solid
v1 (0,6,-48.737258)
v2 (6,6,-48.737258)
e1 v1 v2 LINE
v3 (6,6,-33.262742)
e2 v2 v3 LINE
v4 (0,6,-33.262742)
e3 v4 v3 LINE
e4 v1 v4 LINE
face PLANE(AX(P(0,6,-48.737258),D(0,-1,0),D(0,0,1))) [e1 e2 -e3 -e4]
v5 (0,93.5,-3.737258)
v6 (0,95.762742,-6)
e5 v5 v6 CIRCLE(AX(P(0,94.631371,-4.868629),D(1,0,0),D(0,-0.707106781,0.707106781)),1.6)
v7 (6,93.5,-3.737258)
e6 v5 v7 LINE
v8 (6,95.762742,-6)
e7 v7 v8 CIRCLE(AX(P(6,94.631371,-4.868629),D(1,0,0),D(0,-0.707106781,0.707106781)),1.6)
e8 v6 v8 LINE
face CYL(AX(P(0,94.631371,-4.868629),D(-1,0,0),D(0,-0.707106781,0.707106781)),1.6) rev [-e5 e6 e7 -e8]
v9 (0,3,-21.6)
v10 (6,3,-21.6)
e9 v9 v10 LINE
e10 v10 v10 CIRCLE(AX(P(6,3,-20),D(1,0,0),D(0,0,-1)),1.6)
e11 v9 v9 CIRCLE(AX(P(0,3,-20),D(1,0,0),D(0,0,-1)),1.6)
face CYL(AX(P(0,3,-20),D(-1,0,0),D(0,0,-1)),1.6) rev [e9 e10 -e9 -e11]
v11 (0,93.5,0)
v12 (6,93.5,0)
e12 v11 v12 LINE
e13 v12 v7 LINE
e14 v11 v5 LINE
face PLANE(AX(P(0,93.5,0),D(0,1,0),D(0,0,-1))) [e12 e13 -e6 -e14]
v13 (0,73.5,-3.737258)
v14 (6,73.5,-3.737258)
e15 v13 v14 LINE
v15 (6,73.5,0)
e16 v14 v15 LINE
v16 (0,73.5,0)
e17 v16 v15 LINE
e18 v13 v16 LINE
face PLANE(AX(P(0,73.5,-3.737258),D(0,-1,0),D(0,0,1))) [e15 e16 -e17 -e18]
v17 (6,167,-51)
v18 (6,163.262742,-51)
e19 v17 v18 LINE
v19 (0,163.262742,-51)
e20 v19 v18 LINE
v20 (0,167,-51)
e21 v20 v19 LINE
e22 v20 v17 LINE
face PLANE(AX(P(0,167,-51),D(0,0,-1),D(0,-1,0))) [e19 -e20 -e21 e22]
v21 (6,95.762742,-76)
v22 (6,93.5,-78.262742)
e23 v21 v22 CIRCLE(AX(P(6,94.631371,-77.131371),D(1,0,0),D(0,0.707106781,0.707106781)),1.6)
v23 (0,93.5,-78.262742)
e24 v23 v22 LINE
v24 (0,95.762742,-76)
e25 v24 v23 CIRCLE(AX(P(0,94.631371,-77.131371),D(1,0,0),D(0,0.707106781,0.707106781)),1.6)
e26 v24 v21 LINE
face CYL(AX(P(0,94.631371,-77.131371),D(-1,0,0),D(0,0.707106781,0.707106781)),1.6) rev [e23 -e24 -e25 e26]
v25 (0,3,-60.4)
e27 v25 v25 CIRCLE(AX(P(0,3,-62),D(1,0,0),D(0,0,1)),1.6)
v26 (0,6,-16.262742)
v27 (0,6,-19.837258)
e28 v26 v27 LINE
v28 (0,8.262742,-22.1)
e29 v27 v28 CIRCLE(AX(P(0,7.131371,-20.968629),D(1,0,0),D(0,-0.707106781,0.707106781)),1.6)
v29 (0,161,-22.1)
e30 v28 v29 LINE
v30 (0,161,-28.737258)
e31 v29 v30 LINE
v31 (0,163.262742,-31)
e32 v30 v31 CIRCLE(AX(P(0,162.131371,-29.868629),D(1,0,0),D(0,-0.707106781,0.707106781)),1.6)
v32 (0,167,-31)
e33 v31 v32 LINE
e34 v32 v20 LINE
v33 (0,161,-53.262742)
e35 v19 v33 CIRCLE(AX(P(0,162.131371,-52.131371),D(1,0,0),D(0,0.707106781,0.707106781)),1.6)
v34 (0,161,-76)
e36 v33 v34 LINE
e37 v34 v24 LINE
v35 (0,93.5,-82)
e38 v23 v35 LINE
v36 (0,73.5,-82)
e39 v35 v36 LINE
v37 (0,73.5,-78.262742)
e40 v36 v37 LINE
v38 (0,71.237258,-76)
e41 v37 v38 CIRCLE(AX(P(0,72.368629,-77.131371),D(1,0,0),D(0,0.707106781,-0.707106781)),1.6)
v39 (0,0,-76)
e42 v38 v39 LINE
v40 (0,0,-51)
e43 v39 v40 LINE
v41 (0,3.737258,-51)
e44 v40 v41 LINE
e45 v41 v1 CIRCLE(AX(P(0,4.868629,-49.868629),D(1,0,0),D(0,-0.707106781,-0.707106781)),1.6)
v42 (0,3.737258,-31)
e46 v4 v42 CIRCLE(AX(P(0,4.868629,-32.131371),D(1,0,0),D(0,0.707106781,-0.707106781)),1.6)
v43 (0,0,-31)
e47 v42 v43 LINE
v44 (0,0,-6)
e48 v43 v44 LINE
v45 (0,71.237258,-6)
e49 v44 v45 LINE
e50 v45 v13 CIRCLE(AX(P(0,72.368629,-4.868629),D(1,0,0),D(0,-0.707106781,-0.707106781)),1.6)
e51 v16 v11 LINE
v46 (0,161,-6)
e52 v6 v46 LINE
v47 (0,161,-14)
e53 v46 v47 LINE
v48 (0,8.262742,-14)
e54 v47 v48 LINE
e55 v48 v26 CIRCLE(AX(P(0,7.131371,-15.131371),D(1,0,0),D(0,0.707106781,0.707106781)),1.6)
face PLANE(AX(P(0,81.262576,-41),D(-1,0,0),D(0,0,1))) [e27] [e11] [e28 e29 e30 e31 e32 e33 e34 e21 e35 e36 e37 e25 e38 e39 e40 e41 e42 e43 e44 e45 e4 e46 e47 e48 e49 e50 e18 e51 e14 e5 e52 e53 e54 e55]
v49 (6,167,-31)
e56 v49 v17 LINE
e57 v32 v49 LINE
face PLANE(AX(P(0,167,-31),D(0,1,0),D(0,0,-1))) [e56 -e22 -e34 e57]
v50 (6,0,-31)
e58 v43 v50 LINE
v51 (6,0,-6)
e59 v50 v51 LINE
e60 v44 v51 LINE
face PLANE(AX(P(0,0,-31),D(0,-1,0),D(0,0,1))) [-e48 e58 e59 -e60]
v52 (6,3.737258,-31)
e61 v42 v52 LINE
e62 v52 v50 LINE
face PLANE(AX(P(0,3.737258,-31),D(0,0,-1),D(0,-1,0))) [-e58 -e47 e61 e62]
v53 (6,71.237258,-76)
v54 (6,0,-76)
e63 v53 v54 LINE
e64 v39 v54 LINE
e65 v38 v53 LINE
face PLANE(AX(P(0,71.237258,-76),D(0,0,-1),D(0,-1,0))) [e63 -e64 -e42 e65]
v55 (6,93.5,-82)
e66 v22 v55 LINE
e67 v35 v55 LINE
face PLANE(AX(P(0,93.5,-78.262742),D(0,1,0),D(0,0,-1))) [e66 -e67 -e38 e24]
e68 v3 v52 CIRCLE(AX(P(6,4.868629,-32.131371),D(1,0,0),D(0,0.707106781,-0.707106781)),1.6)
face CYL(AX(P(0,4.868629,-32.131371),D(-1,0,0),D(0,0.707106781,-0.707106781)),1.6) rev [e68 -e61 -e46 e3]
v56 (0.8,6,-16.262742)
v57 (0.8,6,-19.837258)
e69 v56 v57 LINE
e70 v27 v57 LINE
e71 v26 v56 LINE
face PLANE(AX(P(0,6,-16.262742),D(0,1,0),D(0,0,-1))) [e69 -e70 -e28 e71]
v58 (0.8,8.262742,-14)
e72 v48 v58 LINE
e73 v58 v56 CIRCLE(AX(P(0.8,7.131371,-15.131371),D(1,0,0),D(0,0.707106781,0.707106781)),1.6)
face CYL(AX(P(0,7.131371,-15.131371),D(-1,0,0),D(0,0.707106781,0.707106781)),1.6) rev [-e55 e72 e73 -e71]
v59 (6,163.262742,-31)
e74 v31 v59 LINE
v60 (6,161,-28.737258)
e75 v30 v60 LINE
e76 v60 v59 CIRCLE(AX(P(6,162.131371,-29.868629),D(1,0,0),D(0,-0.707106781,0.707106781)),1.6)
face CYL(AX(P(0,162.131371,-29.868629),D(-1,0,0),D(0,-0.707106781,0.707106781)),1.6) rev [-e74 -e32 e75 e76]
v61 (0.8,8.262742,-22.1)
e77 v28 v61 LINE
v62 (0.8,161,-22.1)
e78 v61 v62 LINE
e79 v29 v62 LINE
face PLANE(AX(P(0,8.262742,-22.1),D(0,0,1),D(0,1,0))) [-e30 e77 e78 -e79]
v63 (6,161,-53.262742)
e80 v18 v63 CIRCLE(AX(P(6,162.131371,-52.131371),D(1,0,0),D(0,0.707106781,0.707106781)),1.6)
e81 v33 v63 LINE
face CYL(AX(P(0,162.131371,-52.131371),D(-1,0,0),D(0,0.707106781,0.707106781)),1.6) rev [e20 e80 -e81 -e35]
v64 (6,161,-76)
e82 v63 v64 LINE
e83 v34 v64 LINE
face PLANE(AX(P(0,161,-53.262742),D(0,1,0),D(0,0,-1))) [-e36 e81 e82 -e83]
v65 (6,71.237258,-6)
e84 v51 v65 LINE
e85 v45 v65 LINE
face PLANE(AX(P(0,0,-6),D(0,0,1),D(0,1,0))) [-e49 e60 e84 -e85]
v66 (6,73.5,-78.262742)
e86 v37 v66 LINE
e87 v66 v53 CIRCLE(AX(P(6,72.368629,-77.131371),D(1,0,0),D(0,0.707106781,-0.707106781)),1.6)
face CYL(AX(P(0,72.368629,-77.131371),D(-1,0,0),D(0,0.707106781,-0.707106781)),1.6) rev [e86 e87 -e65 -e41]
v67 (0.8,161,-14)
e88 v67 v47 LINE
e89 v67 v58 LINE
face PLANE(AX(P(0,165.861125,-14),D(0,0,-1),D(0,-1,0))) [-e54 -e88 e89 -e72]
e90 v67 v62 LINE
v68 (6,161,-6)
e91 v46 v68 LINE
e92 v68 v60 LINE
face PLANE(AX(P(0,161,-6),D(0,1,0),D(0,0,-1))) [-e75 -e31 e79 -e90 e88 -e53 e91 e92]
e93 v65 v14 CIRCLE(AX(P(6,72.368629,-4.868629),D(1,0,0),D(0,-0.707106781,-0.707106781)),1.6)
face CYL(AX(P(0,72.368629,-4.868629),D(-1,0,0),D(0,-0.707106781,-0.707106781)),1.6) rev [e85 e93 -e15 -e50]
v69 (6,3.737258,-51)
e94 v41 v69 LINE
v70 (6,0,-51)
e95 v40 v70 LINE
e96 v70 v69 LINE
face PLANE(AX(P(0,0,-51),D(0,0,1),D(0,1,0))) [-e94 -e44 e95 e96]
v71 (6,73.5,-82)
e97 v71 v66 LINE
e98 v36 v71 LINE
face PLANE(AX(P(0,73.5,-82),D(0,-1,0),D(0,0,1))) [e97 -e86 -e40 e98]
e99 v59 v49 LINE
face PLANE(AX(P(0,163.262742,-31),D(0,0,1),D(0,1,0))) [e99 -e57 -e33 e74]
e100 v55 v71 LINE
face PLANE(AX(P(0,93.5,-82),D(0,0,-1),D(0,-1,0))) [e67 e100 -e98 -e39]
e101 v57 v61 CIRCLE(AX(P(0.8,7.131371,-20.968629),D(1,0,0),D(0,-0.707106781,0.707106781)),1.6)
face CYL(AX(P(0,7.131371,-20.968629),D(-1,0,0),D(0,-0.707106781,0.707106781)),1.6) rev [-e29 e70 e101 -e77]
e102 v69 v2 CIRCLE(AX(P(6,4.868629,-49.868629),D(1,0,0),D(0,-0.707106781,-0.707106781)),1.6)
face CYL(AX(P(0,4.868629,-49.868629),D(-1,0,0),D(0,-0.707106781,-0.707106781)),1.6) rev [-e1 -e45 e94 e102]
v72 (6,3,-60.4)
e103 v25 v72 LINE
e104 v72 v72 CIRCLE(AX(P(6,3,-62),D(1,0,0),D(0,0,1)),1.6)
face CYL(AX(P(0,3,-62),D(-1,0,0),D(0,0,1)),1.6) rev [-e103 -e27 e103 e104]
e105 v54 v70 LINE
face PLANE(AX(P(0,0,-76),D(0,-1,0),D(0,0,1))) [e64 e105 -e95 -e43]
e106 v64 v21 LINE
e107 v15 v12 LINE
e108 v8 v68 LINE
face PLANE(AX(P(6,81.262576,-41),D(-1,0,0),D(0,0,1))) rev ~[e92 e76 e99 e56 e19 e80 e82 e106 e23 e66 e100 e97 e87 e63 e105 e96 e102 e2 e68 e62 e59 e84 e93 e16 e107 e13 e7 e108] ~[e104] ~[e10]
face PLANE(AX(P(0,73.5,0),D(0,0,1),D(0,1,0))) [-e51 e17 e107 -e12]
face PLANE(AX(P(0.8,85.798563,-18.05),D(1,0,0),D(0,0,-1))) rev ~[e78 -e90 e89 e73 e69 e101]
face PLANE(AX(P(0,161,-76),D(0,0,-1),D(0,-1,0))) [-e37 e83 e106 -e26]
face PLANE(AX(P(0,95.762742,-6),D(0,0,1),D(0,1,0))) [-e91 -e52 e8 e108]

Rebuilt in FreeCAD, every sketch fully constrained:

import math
import FreeCAD as App
import Part
import Sketcher

doc = App.newDocument("Part")
body = doc.addObject("PartDesign::Body", "Body")

sketch1 = body.newObject("Sketcher::SketchObject", "Sketch")
sketch1.AttachmentSupport = (doc.getObject("YZ_Plane"), [""])
sketch1.MapMode = "FlatFace"
sketch1.addGeometry(Part.LineSegment(App.Vector(73.5, 0, 0), App.Vector(73.5, -3.7, 0)), False)
sketch1.addGeometry(Part.ArcOfCircle(Part.Circle(App.Vector(72.4, -4.9, 0), App.Vector(0, 0, 1), 1.6), math.radians(-135), math.radians(45)), False)
sketch1.addGeometry(Part.LineSegment(App.Vector(71.2, -6, 0), App.Vector(0, -6, 0)), False)
sketch1.addGeometry(Part.LineSegment(App.Vector(0, -6, 0), App.Vector(0, -31, 0)), False)
sketch1.addGeometry(Part.LineSegment(App.Vector(0, -31, 0), App.Vector(3.7, -31, 0)), False)
sketch1.addGeometry(Part.ArcOfCircle(Part.Circle(App.Vector(4.9, -32.1, 0), App.Vector(0, 0, 1), 1.6), math.radians(-45), math.radians(135)), False)
sketch1.addGeometry(Part.LineSegment(App.Vector(6, -33.3, 0), App.Vector(6, -48.7, 0)), False)
sketch1.addGeometry(Part.ArcOfCircle(Part.Circle(App.Vector(4.9, -49.9, 0), App.Vector(0, 0, 1), 1.6), math.radians(-135), math.radians(45)), False)
sketch1.addGeometry(Part.LineSegment(App.Vector(3.7, -51, 0), App.Vector(0, -51, 0)), False)
sketch1.addGeometry(Part.LineSegment(App.Vector(0, -51, 0), App.Vector(0, -76, 0)), False)
sketch1.addGeometry(Part.LineSegment(App.Vector(0, -76, 0), App.Vector(71.2, -76, 0)), False)
sketch1.addGeometry(Part.ArcOfCircle(Part.Circle(App.Vector(72.4, -77.1, 0), App.Vector(0, 0, 1), 1.6), math.radians(-45), math.radians(135)), False)
sketch1.addGeometry(Part.LineSegment(App.Vector(73.5, -78.3, 0), App.Vector(73.5, -82, 0)), False)
sketch1.addGeometry(Part.LineSegment(App.Vector(73.5, -82, 0), App.Vector(93.5, -82, 0)), False)
sketch1.addGeometry(Part.LineSegment(App.Vector(93.5, -82, 0), App.Vector(93.5, -78.3, 0)), False)
sketch1.addGeometry(Part.ArcOfCircle(Part.Circle(App.Vector(94.6, -77.1, 0), App.Vector(0, 0, 1), 1.6), math.radians(45), math.radians(225)), False)
sketch1.addGeometry(Part.LineSegment(App.Vector(95.8, -76, 0), App.Vector(161, -76, 0)), False)
sketch1.addGeometry(Part.LineSegment(App.Vector(161, -76, 0), App.Vector(161, -53.3, 0)), False)
sketch1.addGeometry(Part.ArcOfCircle(Part.Circle(App.Vector(162.1, -52.1, 0), App.Vector(0, 0, 1), 1.6), math.radians(45), math.radians(225)), False)
sketch1.addGeometry(Part.LineSegment(App.Vector(163.3, -51, 0), App.Vector(167, -51, 0)), False)
sketch1.addGeometry(Part.LineSegment(App.Vector(167, -51, 0), App.Vector(167, -31, 0)), False)
sketch1.addGeometry(Part.LineSegment(App.Vector(167, -31, 0), App.Vector(163.3, -31, 0)), False)
sketch1.addGeometry(Part.ArcOfCircle(Part.Circle(App.Vector(162.1, -29.9, 0), App.Vector(0, 0, 1), 1.6), math.radians(135), math.radians(315)), False)
sketch1.addGeometry(Part.LineSegment(App.Vector(161, -28.7, 0), App.Vector(161, -6, 0)), False)
sketch1.addGeometry(Part.LineSegment(App.Vector(161, -6, 0), App.Vector(95.8, -6, 0)), False)
sketch1.addGeometry(Part.ArcOfCircle(Part.Circle(App.Vector(94.6, -4.9, 0), App.Vector(0, 0, 1), 1.6), math.radians(135), math.radians(315)), False)
sketch1.addGeometry(Part.LineSegment(App.Vector(93.5, -3.7, 0), App.Vector(93.5, 0, 0)), False)
sketch1.addGeometry(Part.LineSegment(App.Vector(93.5, 0, 0), App.Vector(73.5, 0, 0)), False)
sketch1.addGeometry(Part.Circle(App.Vector(3, -62, 0), App.Vector(0, 0, 1), 1.6), False)
sketch1.addGeometry(Part.Circle(App.Vector(3, -20, 0), App.Vector(0, 0, 1), 1.6), False)
sketch1.addConstraint(Sketcher.Constraint("Coincident", 0, 2, 1, 2))
sketch1.addConstraint(Sketcher.Constraint("Coincident", 1, 1, 2, 1))
sketch1.addConstraint(Sketcher.Constraint("Coincident", 2, 2, 3, 1))
sketch1.addConstraint(Sketcher.Constraint("Coincident", 3, 2, 4, 1))
sketch1.addConstraint(Sketcher.Constraint("Coincident", 4, 2, 5, 2))
sketch1.addConstraint(Sketcher.Constraint("Coincident", 5, 1, 6, 1))
sketch1.addConstraint(Sketcher.Constraint("Coincident", 6, 2, 7, 2))
sketch1.addConstraint(Sketcher.Constraint("Coincident", 7, 1, 8, 1))
sketch1.addConstraint(Sketcher.Constraint("Coincident", 8, 2, 9, 1))
sketch1.addConstraint(Sketcher.Constraint("Coincident", 9, 2, 10, 1))
sketch1.addConstraint(Sketcher.Constraint("Coincident", 10, 2, 11, 2))
sketch1.addConstraint(Sketcher.Constraint("Coincident", 11, 1, 12, 1))
sketch1.addConstraint(Sketcher.Constraint("Coincident", 12, 2, 13, 1))
sketch1.addConstraint(Sketcher.Constraint("Coincident", 13, 2, 14, 1))
sketch1.addConstraint(Sketcher.Constraint("Coincident", 14, 2, 15, 2))
sketch1.addConstraint(Sketcher.Constraint("Coincident", 15, 1, 16, 1))
sketch1.addConstraint(Sketcher.Constraint("Coincident", 16, 2, 17, 1))
sketch1.addConstraint(Sketcher.Constraint("Coincident", 17, 2, 18, 2))
sketch1.addConstraint(Sketcher.Constraint("Coincident", 18, 1, 19, 1))
sketch1.addConstraint(Sketcher.Constraint("Coincident", 19, 2, 20, 1))
sketch1.addConstraint(Sketcher.Constraint("Coincident", 20, 2, 21, 1))
sketch1.addConstraint(Sketcher.Constraint("Coincident", 21, 2, 22, 2))
sketch1.addConstraint(Sketcher.Constraint("Coincident", 22, 1, 23, 1))
sketch1.addConstraint(Sketcher.Constraint("Coincident", 23, 2, 24, 1))
sketch1.addConstraint(Sketcher.Constraint("Coincident", 24, 2, 25, 2))
sketch1.addConstraint(Sketcher.Constraint("Coincident", 25, 1, 26, 1))
sketch1.addConstraint(Sketcher.Constraint("Coincident", 26, 2, 27, 1))
sketch1.addConstraint(Sketcher.Constraint("Coincident", 27, 2, 0, 1))
sketch1.addConstraint(Sketcher.Constraint("Vertical", 0))
sketch1.addConstraint(Sketcher.Constraint("Horizontal", 2))
sketch1.addConstraint(Sketcher.Constraint("Vertical", 3))
sketch1.addConstraint(Sketcher.Constraint("Horizontal", 4))
sketch1.addConstraint(Sketcher.Constraint("Vertical", 6))
sketch1.addConstraint(Sketcher.Constraint("Horizontal", 8))
sketch1.addConstraint(Sketcher.Constraint("Vertical", 9))
sketch1.addConstraint(Sketcher.Constraint("Horizontal", 10))
sketch1.addConstraint(Sketcher.Constraint("Vertical", 12))
sketch1.addConstraint(Sketcher.Constraint("Horizontal", 13))
sketch1.addConstraint(Sketcher.Constraint("Vertical", 14))
sketch1.addConstraint(Sketcher.Constraint("Horizontal", 16))
sketch1.addConstraint(Sketcher.Constraint("Vertical", 17))
sketch1.addConstraint(Sketcher.Constraint("Horizontal", 19))
sketch1.addConstraint(Sketcher.Constraint("Vertical", 20))
sketch1.addConstraint(Sketcher.Constraint("Horizontal", 21))
sketch1.addConstraint(Sketcher.Constraint("Vertical", 23))
sketch1.addConstraint(Sketcher.Constraint("Horizontal", 24))
sketch1.addConstraint(Sketcher.Constraint("Vertical", 26))
sketch1.addConstraint(Sketcher.Constraint("Horizontal", 27))
sketch1.addConstraint(Sketcher.Constraint("Equal", 1, 5))
sketch1.addConstraint(Sketcher.Constraint("Equal", 5, 7))
sketch1.addConstraint(Sketcher.Constraint("Equal", 7, 11))
sketch1.addConstraint(Sketcher.Constraint("Equal", 11, 15))
sketch1.addConstraint(Sketcher.Constraint("Equal", 15, 18))
sketch1.addConstraint(Sketcher.Constraint("Equal", 18, 22))
sketch1.addConstraint(Sketcher.Constraint("Equal", 22, 25))
sketch1.addConstraint(Sketcher.Constraint("Equal", 25, 28))
sketch1.addConstraint(Sketcher.Constraint("Equal", 28, 29))
sketch1.addConstraint(Sketcher.Constraint("PointOnObject", 2, 2, -2))
sketch1.addConstraint(Sketcher.Constraint("PointOnObject", 8, 2, -2))
sketch1.addConstraint(Sketcher.Constraint("PointOnObject", 26, 2, -1))
sketch1.addConstraint(Sketcher.Constraint("Horizontal", 11, 3, 15, 3))
sketch1.addConstraint(Sketcher.Constraint("Horizontal", 1, 3, 25, 3))
sketch1.addConstraint(Sketcher.Constraint("Horizontal", 11, 1, 14, 2))
sketch1.addConstraint(Sketcher.Constraint("Horizontal", 10, 2, 15, 1))
sketch1.addConstraint(Sketcher.Constraint("Horizontal", 8, 2, 18, 1))
sketch1.addConstraint(Sketcher.Constraint("Horizontal", 4, 2, 20, 2))
sketch1.addConstraint(Sketcher.Constraint("Horizontal", 2, 2, 23, 2))
sketch1.addConstraint(Sketcher.Constraint("Horizontal", 0, 2, 25, 1))
sketch1.addConstraint(Sketcher.Constraint("Vertical", 5, 3, 7, 3))
sketch1.addConstraint(Sketcher.Constraint("Vertical", 1, 3, 11, 3))
sketch1.addConstraint(Sketcher.Constraint("Vertical", 18, 3, 22, 3))
sketch1.addConstraint(Sketcher.Constraint("Vertical", 15, 3, 25, 3))
sketch1.addConstraint(Sketcher.Constraint("Vertical", 28, 3, 29, 3))
sketch1.addConstraint(Sketcher.Constraint("Vertical", 4, 2, 7, 1))
sketch1.addConstraint(Sketcher.Constraint("Vertical", 1, 1, 10, 2))
sketch1.addConstraint(Sketcher.Constraint("Vertical", 0, 2, 11, 1))
sketch1.addConstraint(Sketcher.Constraint("Vertical", 18, 1, 21, 2))
sketch1.addConstraint(Sketcher.Constraint("Vertical", 17, 2, 22, 1))
sketch1.addConstraint(Sketcher.Constraint("Equal", 8, 19))
sketch1.addConstraint(Sketcher.Constraint("Equal", 21, 0))
sketch1.addConstraint(Sketcher.Constraint("Equal", 3, 9))
sketch1.addConstraint(Sketcher.Constraint("Equal", 0, 12))
sketch1.addConstraint(Sketcher.Constraint("Equal", 27, 20))
sketch1.addConstraint(Sketcher.Constraint("Diameter", 28, 3.2))
sketch1.addConstraint(Sketcher.Constraint("DistanceX", 13, 1, 13, 2, 20.0))
sketch1.addConstraint(Sketcher.Constraint("DistanceY", 3, 2, 3, 1, 25.0))
sketch1.addConstraint(Sketcher.Constraint("DistanceX", -1, 1, 28, 3, 3.0))
sketch1.addConstraint(Sketcher.Constraint("DistanceY", 28, 3, -1, 1, 62.0))
sketch1.addConstraint(Sketcher.Constraint("DistanceY", 29, 3, -1, 1, 20.0))
sketch1.addConstraint(Sketcher.Constraint("DistanceY", 1, 1, -1, 1, 6.0))
sketch1.addConstraint(Sketcher.Constraint("DistanceX", -1, 1, 5, 1, 6.0))
sketch1.addConstraint(Sketcher.Constraint("DistanceX", -1, 1, 16, 2, 161.0))
sketch1.addConstraint(Sketcher.Constraint("DistanceX", -1, 1, 19, 2, 167.0))
sketch1.addConstraint(Sketcher.Constraint("DistanceY", 7, 3, 1, 3, 45.0))
sketch1.addConstraint(Sketcher.Constraint("DistanceY", 15, 3, 18, 3, 25.0))
sketch1.addConstraint(Sketcher.Constraint("DistanceX", -1, 1, 0, 2, 73.5))
sketch1.addConstraint(Sketcher.Constraint("DistanceX", 5, 3, 1, 3, 67.5))
sketch1.addConstraint(Sketcher.Constraint("DistanceX", -1, 1, 1, 3, 72.368629))
pad1 = body.newObject("PartDesign::Pad", "Pad")
pad1.Profile = sketch1
pad1.Length = 6

sketch2 = body.newObject("Sketcher::SketchObject", "Sketch001")
sketch2.AttachmentSupport = (doc.getObject("YZ_Plane"), [""])
sketch2.MapMode = "FlatFace"
sketch2.addGeometry(Part.LineSegment(App.Vector(165.9, -14, 0), App.Vector(165.9, -22.1, 0)), False)
sketch2.addGeometry(Part.LineSegment(App.Vector(165.9, -22.1, 0), App.Vector(8.3, -22.1, 0)), False)
sketch2.addGeometry(Part.ArcOfCircle(Part.Circle(App.Vector(7.1, -21, 0), App.Vector(0, 0, 1), 1.6), math.radians(135), math.radians(315)), False)
sketch2.addGeometry(Part.LineSegment(App.Vector(6, -19.8, 0), App.Vector(6, -16.3, 0)), False)
sketch2.addGeometry(Part.ArcOfCircle(Part.Circle(App.Vector(7.1, -15.1, 0), App.Vector(0, 0, 1), 1.6), math.radians(45), math.radians(225)), False)
sketch2.addGeometry(Part.LineSegment(App.Vector(8.3, -14, 0), App.Vector(165.9, -14, 0)), False)
sketch2.addConstraint(Sketcher.Constraint("Coincident", 0, 2, 1, 1))
sketch2.addConstraint(Sketcher.Constraint("Coincident", 1, 2, 2, 2))
sketch2.addConstraint(Sketcher.Constraint("Coincident", 2, 1, 3, 1))
sketch2.addConstraint(Sketcher.Constraint("Coincident", 3, 2, 4, 2))
sketch2.addConstraint(Sketcher.Constraint("Coincident", 4, 1, 5, 1))
sketch2.addConstraint(Sketcher.Constraint("Coincident", 5, 2, 0, 1))
sketch2.addConstraint(Sketcher.Constraint("Vertical", 0))
sketch2.addConstraint(Sketcher.Constraint("Horizontal", 1))
sketch2.addConstraint(Sketcher.Constraint("Vertical", 3))
sketch2.addConstraint(Sketcher.Constraint("Horizontal", 5))
sketch2.addConstraint(Sketcher.Constraint("Equal", 2, 4))
sketch2.addConstraint(Sketcher.Constraint("Vertical", 2, 3, 4, 3))
sketch2.addConstraint(Sketcher.Constraint("Vertical", 1, 2, 4, 1))
sketch2.addConstraint(Sketcher.Constraint("Radius", 2, 1.6))
sketch2.addConstraint(Sketcher.Constraint("DistanceY", 0, 2, 0, 1, 8.1))
sketch2.addConstraint(Sketcher.Constraint("DistanceX", -1, 1, 2, 1, 6.0))
sketch2.addConstraint(Sketcher.Constraint("DistanceY", 4, 1, -1, 1, 14.0))
sketch2.addConstraint(Sketcher.Constraint("DistanceX", 1, 2, 1, 1, 157.598384))
sketch2.addConstraint(Sketcher.Constraint("DistanceY", 3, 1, 3, 2, 3.574517))
sketch2.addConstraint(Sketcher.Constraint("DistanceX", -1, 1, 2, 3, 7.131371))
pocket1 = body.newObject("PartDesign::Pocket", "Pocket")
pocket1.Profile = sketch2
pocket1.Length = 0.8
pocket1.Reversed = True

doc.recompute()
